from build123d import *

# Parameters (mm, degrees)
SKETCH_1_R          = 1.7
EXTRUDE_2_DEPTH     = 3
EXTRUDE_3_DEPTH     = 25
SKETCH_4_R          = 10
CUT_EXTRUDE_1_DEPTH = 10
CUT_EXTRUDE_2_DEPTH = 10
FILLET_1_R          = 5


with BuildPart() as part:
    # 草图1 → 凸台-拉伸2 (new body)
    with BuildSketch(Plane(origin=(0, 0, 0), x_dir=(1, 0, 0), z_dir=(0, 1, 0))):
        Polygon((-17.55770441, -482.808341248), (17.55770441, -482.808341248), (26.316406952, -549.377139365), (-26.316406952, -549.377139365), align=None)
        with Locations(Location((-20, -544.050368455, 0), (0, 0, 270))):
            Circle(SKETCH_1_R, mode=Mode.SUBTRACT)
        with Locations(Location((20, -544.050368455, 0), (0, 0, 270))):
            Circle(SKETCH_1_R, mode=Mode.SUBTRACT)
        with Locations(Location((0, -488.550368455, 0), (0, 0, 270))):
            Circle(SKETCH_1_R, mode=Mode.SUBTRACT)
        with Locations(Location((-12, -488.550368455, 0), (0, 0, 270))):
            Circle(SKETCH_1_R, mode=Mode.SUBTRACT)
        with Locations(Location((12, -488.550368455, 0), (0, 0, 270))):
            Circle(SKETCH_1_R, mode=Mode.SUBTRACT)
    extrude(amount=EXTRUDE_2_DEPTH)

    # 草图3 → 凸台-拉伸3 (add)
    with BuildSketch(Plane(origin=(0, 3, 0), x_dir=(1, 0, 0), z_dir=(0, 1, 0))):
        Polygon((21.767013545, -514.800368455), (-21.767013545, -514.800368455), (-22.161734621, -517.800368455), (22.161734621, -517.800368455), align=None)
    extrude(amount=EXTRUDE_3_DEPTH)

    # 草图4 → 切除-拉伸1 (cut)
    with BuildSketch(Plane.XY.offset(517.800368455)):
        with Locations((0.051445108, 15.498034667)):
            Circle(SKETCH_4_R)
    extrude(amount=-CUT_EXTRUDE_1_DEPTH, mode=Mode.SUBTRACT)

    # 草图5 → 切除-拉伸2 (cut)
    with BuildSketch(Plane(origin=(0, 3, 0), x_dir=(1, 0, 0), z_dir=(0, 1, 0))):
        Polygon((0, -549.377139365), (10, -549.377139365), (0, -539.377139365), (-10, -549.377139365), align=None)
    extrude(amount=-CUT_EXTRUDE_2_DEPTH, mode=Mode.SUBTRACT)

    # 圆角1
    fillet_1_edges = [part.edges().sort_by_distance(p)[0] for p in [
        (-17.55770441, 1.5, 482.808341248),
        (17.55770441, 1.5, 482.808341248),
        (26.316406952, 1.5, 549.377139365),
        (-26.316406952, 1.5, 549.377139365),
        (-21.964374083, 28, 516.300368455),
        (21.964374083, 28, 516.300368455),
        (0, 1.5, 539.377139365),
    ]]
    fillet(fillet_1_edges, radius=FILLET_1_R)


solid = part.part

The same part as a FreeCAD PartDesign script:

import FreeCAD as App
import Part
import Sketcher

V = App.Vector


def edges_at(feature, points):
    """Names of the edges that pass closest to the given points."""
    edges = feature.Shape.Edges
    near = lambda p: min(range(len(edges)), key=lambda i: edges[i].distToShape(Part.Vertex(*p))[0])
    return sorted({f"Edge{near(p) + 1}" for p in points})


def add_polygon(sketch, points):
    """Adds a closed chain of lines whose ends are joined by coincident constraints."""
    first, n = sketch.GeometryCount, len(points)
    for a, b in zip(points, points[1:] + points[:1]):
        sketch.addGeometry(Part.LineSegment(App.Vector(*a, 0), App.Vector(*b, 0)), False)
    for i in range(n):
        sketch.addConstraint(Sketcher.Constraint("Coincident", first + i, 2, first + (i + 1) % n, 1))

doc = App.newDocument("Part")
body = doc.addObject("PartDesign::Body", "Body")

# Sketch on XZ plane
sketch1 = doc.addObject("Sketcher::SketchObject", "Sketch")
body.addObject(sketch1)
sketch1.AttachmentSupport = (doc.XZ_Plane, [""])
sketch1.MapMode = "FlatFace"
add_polygon(sketch1, [(17.6, 482.8), (-17.6, 482.8), (-26.3, 549.4), (26.3, 549.4)])  # lines 0-3
sketch1.addGeometry(Part.Circle(V(20, 544.1, 0), V(0, 0, 1), 1.7), False)  # 4
sketch1.addGeometry(Part.Circle(V(-20, 544.1, 0), V(0, 0, 1), 1.7), False)  # 5
sketch1.addGeometry(Part.Circle(V(12, 488.6, 0), V(0, 0, 1), 1.7), False)  # 6
sketch1.addGeometry(Part.Circle(V(0, 488.6, 0), V(0, 0, 1), 1.7), False)  # 7
sketch1.addGeometry(Part.Circle(V(-12, 488.6, 0), V(0, 0, 1), 1.7), False)  # 8
sketch1.addConstraint([
    Sketcher.Constraint("Horizontal", 0),
    Sketcher.Constraint("Horizontal", 2),
    Sketcher.Constraint("Equal", 4, 5),
    Sketcher.Constraint("Equal", 5, 6),
    Sketcher.Constraint("Equal", 6, 7),
    Sketcher.Constraint("Equal", 7, 8),
    Sketcher.Constraint("Symmetric", 4, 3, 5, 3, -2),
    Sketcher.Constraint("Symmetric", 6, 3, 8, 3, -2),
    Sketcher.Constraint("PointOnObject", 7, 3, -2),
    Sketcher.Constraint("Horizontal", 6, 3, 7, 3),
    Sketcher.Constraint("Equal", 1, 3),
    Sketcher.Constraint("Diameter", 4, 3.4),
    Sketcher.Constraint("DistanceX", -1, 1, 4, 3, 20.0),
    Sketcher.Constraint("DistanceX", -1, 1, 6, 3, 12.0),
    Sketcher.Constraint("DistanceY", 6, 3, 4, 3, 55.5),
    Sketcher.Constraint("DistanceX", 0, 2, 0, 1, 35.115409),
    Sketcher.Constraint("DistanceY", 0, 2, 1, 2, 66.568798),
    Sketcher.Constraint("DistanceX", 2, 1, 2, 2, 52.632814),
    Sketcher.Constraint("DistanceY", -1, 1, 4, 3, 544.050368),
    Sketcher.Constraint("DistanceY", -1, 1, 0, 2, 482.808341),
    Sketcher.Constraint("DistanceX", 0, 2, -1, 1, 17.557704),
])
pad1 = doc.addObject("PartDesign::Pad", "Pad")
body.addObject(pad1)
pad1.Profile = sketch1
pad1.Length = 3
pad1.Reversed = True

# Sketch on XZ plane
sketch2 = doc.addObject("Sketcher::SketchObject", "Sketch001")
body.addObject(sketch2)
sketch2.AttachmentSupport = (doc.XZ_Plane, [""])
sketch2.MapMode = "FlatFace"
sketch2.AttachmentOffset = App.Placement(V(0, 0, -3), App.Rotation())
add_polygon(sketch2, [(21.8, 514.8), (-21.8, 514.8), (-22.2, 517.8), (22.2, 517.8)])  # lines 0-3
sketch2.addConstraint([
    Sketcher.Constraint("Horizontal", 0),
    Sketcher.Constraint("Horizontal", 2),
    Sketcher.Constraint("Equal", 1, 3),
    Sketcher.Constraint("DistanceY", 0, 2, 1, 2, 3.0),
    Sketcher.Constraint("DistanceX", 2, 1, 2, 2, 44.323469),
    Sketcher.Constraint("DistanceX", 0, 2, 0, 1, 43.534027),
    Sketcher.Constraint("DistanceY", -1, 1, 0, 2, 514.800368),
    Sketcher.Constraint("DistanceX", 0, 2, -1, 1, 21.767014),
])
pad2 = doc.addObject("PartDesign::Pad", "Pad001")
body.addObject(pad2)
pad2.Profile = sketch2
pad2.Length = 25
pad2.Reversed = True

# Sketch on XY plane
sketch3 = doc.addObject("Sketcher::SketchObject", "Sketch002")
body.addObject(sketch3)
sketch3.AttachmentSupport = (doc.XY_Plane, [""])
sketch3.MapMode = "FlatFace"
sketch3.AttachmentOffset = App.Placement(V(0, 0, 517.800368), App.Rotation())
sketch3.addGeometry(Part.Circle(V(0, 15, 0), V(0, 0, 1), 10), False)
sketch3.addConstraint([
    Sketcher.Constraint("Diameter", 0, 20.0),
    Sketcher.Constraint("DistanceX", -1, 1, 0, 3, 0.051445),
    Sketcher.Constraint("DistanceY", -1, 1, 0, 3, 15.498035),
])
pocket1 = doc.addObject("PartDesign::Pocket", "Pocket")
body.addObject(pocket1)
pocket1.Profile = sketch3
pocket1.Length = 10

# Sketch on XZ plane
sketch4 = doc.addObject("Sketcher::SketchObject", "Sketch003")
body.addObject(sketch4)
sketch4.AttachmentSupport = (doc.XZ_Plane, [""])
sketch4.MapMode = "FlatFace"
sketch4.AttachmentOffset = App.Placement(V(0, 0, -3), App.Rotation())
add_polygon(sketch4, [(10, 549), (0, 539), (-10, 549)])  # lines 0-2
sketch4.addConstraint([
    Sketcher.Constraint("Horizontal", 2),
    Sketcher.Constraint("PointOnObject", 0, 2, -2),
    Sketcher.Constraint("Perpendicular", 0, 1),
    Sketcher.Constraint("Equal", 0, 1),
    Sketcher.Constraint("DistanceX", 2, 1, 2, 2, 20.0),
    Sketcher.Constraint("DistanceY", -1, 1, 0, 2, 539.377139),
])
pocket2 = doc.addObject("PartDesign::Pocket", "Pocket001")
body.addObject(pocket2)
pocket2.Profile = sketch4
pocket2.Length = 10
pocket2.Reversed = True
doc.recompute()

fillet = doc.addObject("PartDesign::Fillet", "Fillet")
body.addObject(fillet)
fillet.Base = (pocket2, edges_at(pocket2, [
    (-17.558, 1.5, 482.808),
    (17.558, 1.5, 482.808),
    (26.316, 1.5, 549.377),
    (-26.316, 1.5, 549.377),
    (-21.964, 28, 516.3),
    (21.964, 28, 516.3),
    (0, 1.5, 539.377),
]))
fillet.Radius = 5

doc.recompute()
